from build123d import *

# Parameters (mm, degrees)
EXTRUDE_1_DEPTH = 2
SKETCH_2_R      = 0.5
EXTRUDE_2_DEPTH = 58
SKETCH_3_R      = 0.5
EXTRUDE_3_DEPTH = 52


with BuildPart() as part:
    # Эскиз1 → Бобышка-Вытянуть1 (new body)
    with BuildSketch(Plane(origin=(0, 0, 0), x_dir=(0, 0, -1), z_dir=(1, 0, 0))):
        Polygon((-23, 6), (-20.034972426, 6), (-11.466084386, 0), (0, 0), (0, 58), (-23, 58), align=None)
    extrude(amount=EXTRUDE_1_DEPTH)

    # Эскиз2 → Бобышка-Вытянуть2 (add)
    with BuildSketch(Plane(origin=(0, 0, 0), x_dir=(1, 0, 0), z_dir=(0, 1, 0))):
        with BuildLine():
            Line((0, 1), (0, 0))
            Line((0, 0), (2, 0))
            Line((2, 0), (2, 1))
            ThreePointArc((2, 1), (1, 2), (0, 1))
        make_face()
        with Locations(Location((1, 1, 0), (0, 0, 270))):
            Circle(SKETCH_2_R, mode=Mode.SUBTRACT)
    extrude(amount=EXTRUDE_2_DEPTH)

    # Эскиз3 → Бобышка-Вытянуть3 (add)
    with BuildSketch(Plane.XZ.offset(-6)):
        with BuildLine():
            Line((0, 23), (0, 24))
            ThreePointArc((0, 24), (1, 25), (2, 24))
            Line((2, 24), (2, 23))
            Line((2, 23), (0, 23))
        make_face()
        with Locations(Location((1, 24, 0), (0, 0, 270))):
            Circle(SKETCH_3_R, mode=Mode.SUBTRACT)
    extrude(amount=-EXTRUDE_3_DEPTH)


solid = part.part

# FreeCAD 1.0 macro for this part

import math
import FreeCAD as App
import Part
import Sketcher

V = App.Vector
Q = App.Units.Quantity

doc = App.newDocument("Part")
params = doc.addObject("Spreadsheet::Sheet", "Params")
for row, (alias, value) in enumerate([
    ("sketch1_width", "58 mm"),
    ("sketch1_width2", "52 mm"),
    ("sketch1_height", "23 mm"),
    ("pad1_length", "2 mm"),
    ("sketch2_diameter", "1 mm"),
    ("sketch2_radius", "1 mm"),
    ("sketch2_height", "1 mm"),
    ("pad2_length", "58 mm"),
    ("sketch3_diameter", "1 mm"),
    ("sketch3_radius", "1 mm"),
    ("sketch3_height", "1 mm"),
    ("pad3_length", "52 mm"),
], start=1):
    params.set(f"A{row}", alias)
    params.set(f"B{row}", "=" + value)
    params.setAlias(f"B{row}", alias)

body = doc.addObject("PartDesign::Body", "Body")

# Sketch on YZ plane
sketch1 = doc.addObject("Sketcher::SketchObject", "Sketch")
body.addObject(sketch1)
sketch1.AttachmentSupport = (doc.YZ_Plane, [""])
sketch1.MapMode = "FlatFace"
sketch1.addGeometry(Part.LineSegment(V(6, 23, 0), V(6, 20, 0)), False)
sketch1.addGeometry(Part.LineSegment(V(6, 20, 0), V(0, 11.5, 0)), False)
sketch1.addGeometry(Part.LineSegment(V(0, 11.5, 0), V(0, 0, 0)), False)
sketch1.addGeometry(Part.LineSegment(V(0, 0, 0), V(58, 0, 0)), False)
sketch1.addGeometry(Part.LineSegment(V(58, 0, 0), V(58, 23, 0)), False)
sketch1.addGeometry(Part.LineSegment(V(58, 23, 0), V(6, 23, 0)), False)
sketch1.addConstraint(Sketcher.Constraint("Coincident", 0, 2, 1, 1))
sketch1.addConstraint(Sketcher.Constraint("Coincident", 1, 2, 2, 1))
sketch1.addConstraint(Sketcher.Constraint("Coincident", 2, 2, 3, 1))
sketch1.addConstraint(Sketcher.Constraint("Coincident", 3, 2, 4, 1))
sketch1.addConstraint(Sketcher.Constraint("Coincident", 4, 2, 5, 1))
sketch1.addConstraint(Sketcher.Constraint("Coincident", 5, 2, 0, 1))
sketch1.addConstraint(Sketcher.Constraint("Vertical", 0))
sketch1.addConstraint(Sketcher.Constraint("Vertical", 2))
sketch1.addConstraint(Sketcher.Constraint("Horizontal", 3))
sketch1.addConstraint(Sketcher.Constraint("Vertical", 4))
sketch1.addConstraint(Sketcher.Constraint("Horizontal", 5))
sketch1.addConstraint(Sketcher.Constraint("Coincident", 2, 2, -1, 1))
sketch1.addConstraint(Sketcher.Constraint("DistanceX", 3, 1, 3, 2, 58.0))
sketch1.addConstraint(Sketcher.Constraint("DistanceX", 5, 2, 5, 1, 52.0))
sketch1.addConstraint(Sketcher.Constraint("DistanceY", 4, 1, 4, 2, 23.0))
sketch1.addConstraint(Sketcher.Constraint("Angle", 1, Q("-125 deg")))
sketch1.addConstraint(Sketcher.Constraint("DistanceY", 0, 2, 0, 1, 2.965028))
sketch1.setExpression("Constraints[12]", "Params.sketch1_width")
sketch1.setExpression("Constraints[13]", "Params.sketch1_width2")
sketch1.setExpression("Constraints[14]", "Params.sketch1_height")
pad1 = doc.addObject("PartDesign::Pad", "Pad")
body.addObject(pad1)
pad1.Profile = sketch1
pad1.setExpression("Length", "Params.pad1_length")

# Sketch on XZ plane
sketch2 = doc.addObject("Sketcher::SketchObject", "Sketch001")
body.addObject(sketch2)
sketch2.AttachmentSupport = (doc.XZ_Plane, [""])
sketch2.MapMode = "FlatFace"
sketch2.addGeometry(Part.LineSegment(V(0, -1, 0), V(0, 0, 0)), False)
sketch2.addGeometry(Part.LineSegment(V(0, 0, 0), V(2, 0, 0)), False)
sketch2.addGeometry(Part.LineSegment(V(2, 0, 0), V(2, -1, 0)), False)
sketch2.addGeometry(Part.ArcOfCircle(Part.Circle(V(1, -1, 0), V(0, 0, 1), 1), math.radians(180), math.radians(360)), False)
sketch2.addGeometry(Part.Circle(V(1, -1, 0), V(0, 0, 1), 0.5), False)
sketch2.addConstraint(Sketcher.Constraint("Coincident", 0, 2, 1, 1))
sketch2.addConstraint(Sketcher.Constraint("Coincident", 1, 2, 2, 1))
sketch2.addConstraint(Sketcher.Constraint("Tangent", 2, 2, 3, 2))
sketch2.addConstraint(Sketcher.Constraint("Tangent", 3, 1, 0, 1))
sketch2.addConstraint(Sketcher.Constraint("Vertical", 0))
sketch2.addConstraint(Sketcher.Constraint("Horizontal", 1))
sketch2.addConstraint(Sketcher.Constraint("Vertical", 2))
sketch2.addConstraint(Sketcher.Constraint("Coincident", 0, 2, -1, 1))
sketch2.addConstraint(Sketcher.Constraint("Coincident", 4, 3, 3, 3))
sketch2.addConstraint(Sketcher.Constraint("Diameter", 4, 1.0))
sketch2.addConstraint(Sketcher.Constraint("Radius", 3, 1.0))
sketch2.addConstraint(Sketcher.Constraint("DistanceY", 0, 1, 0, 2, 1.0))
sketch2.setExpression("Constraints[9]", "Params.sketch2_diameter")
sketch2.setExpression("Constraints[10]", "Params.sketch2_radius")
sketch2.setExpression("Constraints[11]", "Params.sketch2_height")
pad2 = doc.addObject("PartDesign::Pad", "Pad001")
body.addObject(pad2)
pad2.Profile = sketch2
pad2.setExpression("Length", "Params.pad2_length")
pad2.Reversed = True

# Sketch on XZ plane
sketch3 = doc.addObject("Sketcher::SketchObject", "Sketch002")
body.addObject(sketch3)
sketch3.AttachmentSupport = (doc.XZ_Plane, [""])
sketch3.MapMode = "FlatFace"
sketch3.AttachmentOffset = App.Placement(V(0, 0, -6), App.Rotation())
sketch3.addGeometry(Part.LineSegment(V(0, 24, 0), V(0, 23, 0)), False)
sketch3.addGeometry(Part.LineSegment(V(0, 23, 0), V(2, 23, 0)), False)
sketch3.addGeometry(Part.LineSegment(V(2, 23, 0), V(2, 24, 0)), False)
sketch3.addGeometry(Part.ArcOfCircle(Part.Circle(V(1, 24, 0), V(0, 0, 1), 1), math.radians(0), math.radians(180)), False)
sketch3.addGeometry(Part.Circle(V(1, 24, 0), V(0, 0, 1), 0.5), False)
sketch3.addConstraint(Sketcher.Constraint("Coincident", 0, 2, 1, 1))
sketch3.addConstraint(Sketcher.Constraint("Coincident", 1, 2, 2, 1))
sketch3.addConstraint(Sketcher.Constraint("Tangent", 2, 2, 3, 1))
sketch3.addConstraint(Sketcher.Constraint("Tangent", 3, 2, 0, 1))
sketch3.addConstraint(Sketcher.Constraint("Vertical", 0))
sketch3.addConstraint(Sketcher.Constraint("Horizontal", 1))
sketch3.addConstraint(Sketcher.Constraint("Vertical", 2))
sketch3.addConstraint(Sketcher.Constraint("Coincident", 4, 3, 3, 3))
sketch3.addConstraint(Sketcher.Constraint("PointOnObject", 0, 2, -2))
sketch3.addConstraint(Sketcher.Constraint("Diameter", 4, 1.0))
sketch3.addConstraint(Sketcher.Constraint("Radius", 3, 1.0))
sketch3.addConstraint(Sketcher.Constraint("DistanceY", 0, 2, 0, 1, 1.0))
sketch3.addConstraint(Sketcher.Constraint("DistanceY", -1, 1, 3, 3, 24.0))
sketch3.setExpression("Constraints[9]", "Params.sketch3_diameter")
sketch3.setExpression("Constraints[10]", "Params.sketch3_radius")
sketch3.setExpression("Constraints[11]", "Params.sketch3_height")
pad3 = doc.addObject("PartDesign::Pad", "Pad002")
body.addObject(pad3)
pad3.Profile = sketch3
pad3.setExpression("Length", "Params.pad3_length")
pad3.Reversed = True

doc.recompute()
